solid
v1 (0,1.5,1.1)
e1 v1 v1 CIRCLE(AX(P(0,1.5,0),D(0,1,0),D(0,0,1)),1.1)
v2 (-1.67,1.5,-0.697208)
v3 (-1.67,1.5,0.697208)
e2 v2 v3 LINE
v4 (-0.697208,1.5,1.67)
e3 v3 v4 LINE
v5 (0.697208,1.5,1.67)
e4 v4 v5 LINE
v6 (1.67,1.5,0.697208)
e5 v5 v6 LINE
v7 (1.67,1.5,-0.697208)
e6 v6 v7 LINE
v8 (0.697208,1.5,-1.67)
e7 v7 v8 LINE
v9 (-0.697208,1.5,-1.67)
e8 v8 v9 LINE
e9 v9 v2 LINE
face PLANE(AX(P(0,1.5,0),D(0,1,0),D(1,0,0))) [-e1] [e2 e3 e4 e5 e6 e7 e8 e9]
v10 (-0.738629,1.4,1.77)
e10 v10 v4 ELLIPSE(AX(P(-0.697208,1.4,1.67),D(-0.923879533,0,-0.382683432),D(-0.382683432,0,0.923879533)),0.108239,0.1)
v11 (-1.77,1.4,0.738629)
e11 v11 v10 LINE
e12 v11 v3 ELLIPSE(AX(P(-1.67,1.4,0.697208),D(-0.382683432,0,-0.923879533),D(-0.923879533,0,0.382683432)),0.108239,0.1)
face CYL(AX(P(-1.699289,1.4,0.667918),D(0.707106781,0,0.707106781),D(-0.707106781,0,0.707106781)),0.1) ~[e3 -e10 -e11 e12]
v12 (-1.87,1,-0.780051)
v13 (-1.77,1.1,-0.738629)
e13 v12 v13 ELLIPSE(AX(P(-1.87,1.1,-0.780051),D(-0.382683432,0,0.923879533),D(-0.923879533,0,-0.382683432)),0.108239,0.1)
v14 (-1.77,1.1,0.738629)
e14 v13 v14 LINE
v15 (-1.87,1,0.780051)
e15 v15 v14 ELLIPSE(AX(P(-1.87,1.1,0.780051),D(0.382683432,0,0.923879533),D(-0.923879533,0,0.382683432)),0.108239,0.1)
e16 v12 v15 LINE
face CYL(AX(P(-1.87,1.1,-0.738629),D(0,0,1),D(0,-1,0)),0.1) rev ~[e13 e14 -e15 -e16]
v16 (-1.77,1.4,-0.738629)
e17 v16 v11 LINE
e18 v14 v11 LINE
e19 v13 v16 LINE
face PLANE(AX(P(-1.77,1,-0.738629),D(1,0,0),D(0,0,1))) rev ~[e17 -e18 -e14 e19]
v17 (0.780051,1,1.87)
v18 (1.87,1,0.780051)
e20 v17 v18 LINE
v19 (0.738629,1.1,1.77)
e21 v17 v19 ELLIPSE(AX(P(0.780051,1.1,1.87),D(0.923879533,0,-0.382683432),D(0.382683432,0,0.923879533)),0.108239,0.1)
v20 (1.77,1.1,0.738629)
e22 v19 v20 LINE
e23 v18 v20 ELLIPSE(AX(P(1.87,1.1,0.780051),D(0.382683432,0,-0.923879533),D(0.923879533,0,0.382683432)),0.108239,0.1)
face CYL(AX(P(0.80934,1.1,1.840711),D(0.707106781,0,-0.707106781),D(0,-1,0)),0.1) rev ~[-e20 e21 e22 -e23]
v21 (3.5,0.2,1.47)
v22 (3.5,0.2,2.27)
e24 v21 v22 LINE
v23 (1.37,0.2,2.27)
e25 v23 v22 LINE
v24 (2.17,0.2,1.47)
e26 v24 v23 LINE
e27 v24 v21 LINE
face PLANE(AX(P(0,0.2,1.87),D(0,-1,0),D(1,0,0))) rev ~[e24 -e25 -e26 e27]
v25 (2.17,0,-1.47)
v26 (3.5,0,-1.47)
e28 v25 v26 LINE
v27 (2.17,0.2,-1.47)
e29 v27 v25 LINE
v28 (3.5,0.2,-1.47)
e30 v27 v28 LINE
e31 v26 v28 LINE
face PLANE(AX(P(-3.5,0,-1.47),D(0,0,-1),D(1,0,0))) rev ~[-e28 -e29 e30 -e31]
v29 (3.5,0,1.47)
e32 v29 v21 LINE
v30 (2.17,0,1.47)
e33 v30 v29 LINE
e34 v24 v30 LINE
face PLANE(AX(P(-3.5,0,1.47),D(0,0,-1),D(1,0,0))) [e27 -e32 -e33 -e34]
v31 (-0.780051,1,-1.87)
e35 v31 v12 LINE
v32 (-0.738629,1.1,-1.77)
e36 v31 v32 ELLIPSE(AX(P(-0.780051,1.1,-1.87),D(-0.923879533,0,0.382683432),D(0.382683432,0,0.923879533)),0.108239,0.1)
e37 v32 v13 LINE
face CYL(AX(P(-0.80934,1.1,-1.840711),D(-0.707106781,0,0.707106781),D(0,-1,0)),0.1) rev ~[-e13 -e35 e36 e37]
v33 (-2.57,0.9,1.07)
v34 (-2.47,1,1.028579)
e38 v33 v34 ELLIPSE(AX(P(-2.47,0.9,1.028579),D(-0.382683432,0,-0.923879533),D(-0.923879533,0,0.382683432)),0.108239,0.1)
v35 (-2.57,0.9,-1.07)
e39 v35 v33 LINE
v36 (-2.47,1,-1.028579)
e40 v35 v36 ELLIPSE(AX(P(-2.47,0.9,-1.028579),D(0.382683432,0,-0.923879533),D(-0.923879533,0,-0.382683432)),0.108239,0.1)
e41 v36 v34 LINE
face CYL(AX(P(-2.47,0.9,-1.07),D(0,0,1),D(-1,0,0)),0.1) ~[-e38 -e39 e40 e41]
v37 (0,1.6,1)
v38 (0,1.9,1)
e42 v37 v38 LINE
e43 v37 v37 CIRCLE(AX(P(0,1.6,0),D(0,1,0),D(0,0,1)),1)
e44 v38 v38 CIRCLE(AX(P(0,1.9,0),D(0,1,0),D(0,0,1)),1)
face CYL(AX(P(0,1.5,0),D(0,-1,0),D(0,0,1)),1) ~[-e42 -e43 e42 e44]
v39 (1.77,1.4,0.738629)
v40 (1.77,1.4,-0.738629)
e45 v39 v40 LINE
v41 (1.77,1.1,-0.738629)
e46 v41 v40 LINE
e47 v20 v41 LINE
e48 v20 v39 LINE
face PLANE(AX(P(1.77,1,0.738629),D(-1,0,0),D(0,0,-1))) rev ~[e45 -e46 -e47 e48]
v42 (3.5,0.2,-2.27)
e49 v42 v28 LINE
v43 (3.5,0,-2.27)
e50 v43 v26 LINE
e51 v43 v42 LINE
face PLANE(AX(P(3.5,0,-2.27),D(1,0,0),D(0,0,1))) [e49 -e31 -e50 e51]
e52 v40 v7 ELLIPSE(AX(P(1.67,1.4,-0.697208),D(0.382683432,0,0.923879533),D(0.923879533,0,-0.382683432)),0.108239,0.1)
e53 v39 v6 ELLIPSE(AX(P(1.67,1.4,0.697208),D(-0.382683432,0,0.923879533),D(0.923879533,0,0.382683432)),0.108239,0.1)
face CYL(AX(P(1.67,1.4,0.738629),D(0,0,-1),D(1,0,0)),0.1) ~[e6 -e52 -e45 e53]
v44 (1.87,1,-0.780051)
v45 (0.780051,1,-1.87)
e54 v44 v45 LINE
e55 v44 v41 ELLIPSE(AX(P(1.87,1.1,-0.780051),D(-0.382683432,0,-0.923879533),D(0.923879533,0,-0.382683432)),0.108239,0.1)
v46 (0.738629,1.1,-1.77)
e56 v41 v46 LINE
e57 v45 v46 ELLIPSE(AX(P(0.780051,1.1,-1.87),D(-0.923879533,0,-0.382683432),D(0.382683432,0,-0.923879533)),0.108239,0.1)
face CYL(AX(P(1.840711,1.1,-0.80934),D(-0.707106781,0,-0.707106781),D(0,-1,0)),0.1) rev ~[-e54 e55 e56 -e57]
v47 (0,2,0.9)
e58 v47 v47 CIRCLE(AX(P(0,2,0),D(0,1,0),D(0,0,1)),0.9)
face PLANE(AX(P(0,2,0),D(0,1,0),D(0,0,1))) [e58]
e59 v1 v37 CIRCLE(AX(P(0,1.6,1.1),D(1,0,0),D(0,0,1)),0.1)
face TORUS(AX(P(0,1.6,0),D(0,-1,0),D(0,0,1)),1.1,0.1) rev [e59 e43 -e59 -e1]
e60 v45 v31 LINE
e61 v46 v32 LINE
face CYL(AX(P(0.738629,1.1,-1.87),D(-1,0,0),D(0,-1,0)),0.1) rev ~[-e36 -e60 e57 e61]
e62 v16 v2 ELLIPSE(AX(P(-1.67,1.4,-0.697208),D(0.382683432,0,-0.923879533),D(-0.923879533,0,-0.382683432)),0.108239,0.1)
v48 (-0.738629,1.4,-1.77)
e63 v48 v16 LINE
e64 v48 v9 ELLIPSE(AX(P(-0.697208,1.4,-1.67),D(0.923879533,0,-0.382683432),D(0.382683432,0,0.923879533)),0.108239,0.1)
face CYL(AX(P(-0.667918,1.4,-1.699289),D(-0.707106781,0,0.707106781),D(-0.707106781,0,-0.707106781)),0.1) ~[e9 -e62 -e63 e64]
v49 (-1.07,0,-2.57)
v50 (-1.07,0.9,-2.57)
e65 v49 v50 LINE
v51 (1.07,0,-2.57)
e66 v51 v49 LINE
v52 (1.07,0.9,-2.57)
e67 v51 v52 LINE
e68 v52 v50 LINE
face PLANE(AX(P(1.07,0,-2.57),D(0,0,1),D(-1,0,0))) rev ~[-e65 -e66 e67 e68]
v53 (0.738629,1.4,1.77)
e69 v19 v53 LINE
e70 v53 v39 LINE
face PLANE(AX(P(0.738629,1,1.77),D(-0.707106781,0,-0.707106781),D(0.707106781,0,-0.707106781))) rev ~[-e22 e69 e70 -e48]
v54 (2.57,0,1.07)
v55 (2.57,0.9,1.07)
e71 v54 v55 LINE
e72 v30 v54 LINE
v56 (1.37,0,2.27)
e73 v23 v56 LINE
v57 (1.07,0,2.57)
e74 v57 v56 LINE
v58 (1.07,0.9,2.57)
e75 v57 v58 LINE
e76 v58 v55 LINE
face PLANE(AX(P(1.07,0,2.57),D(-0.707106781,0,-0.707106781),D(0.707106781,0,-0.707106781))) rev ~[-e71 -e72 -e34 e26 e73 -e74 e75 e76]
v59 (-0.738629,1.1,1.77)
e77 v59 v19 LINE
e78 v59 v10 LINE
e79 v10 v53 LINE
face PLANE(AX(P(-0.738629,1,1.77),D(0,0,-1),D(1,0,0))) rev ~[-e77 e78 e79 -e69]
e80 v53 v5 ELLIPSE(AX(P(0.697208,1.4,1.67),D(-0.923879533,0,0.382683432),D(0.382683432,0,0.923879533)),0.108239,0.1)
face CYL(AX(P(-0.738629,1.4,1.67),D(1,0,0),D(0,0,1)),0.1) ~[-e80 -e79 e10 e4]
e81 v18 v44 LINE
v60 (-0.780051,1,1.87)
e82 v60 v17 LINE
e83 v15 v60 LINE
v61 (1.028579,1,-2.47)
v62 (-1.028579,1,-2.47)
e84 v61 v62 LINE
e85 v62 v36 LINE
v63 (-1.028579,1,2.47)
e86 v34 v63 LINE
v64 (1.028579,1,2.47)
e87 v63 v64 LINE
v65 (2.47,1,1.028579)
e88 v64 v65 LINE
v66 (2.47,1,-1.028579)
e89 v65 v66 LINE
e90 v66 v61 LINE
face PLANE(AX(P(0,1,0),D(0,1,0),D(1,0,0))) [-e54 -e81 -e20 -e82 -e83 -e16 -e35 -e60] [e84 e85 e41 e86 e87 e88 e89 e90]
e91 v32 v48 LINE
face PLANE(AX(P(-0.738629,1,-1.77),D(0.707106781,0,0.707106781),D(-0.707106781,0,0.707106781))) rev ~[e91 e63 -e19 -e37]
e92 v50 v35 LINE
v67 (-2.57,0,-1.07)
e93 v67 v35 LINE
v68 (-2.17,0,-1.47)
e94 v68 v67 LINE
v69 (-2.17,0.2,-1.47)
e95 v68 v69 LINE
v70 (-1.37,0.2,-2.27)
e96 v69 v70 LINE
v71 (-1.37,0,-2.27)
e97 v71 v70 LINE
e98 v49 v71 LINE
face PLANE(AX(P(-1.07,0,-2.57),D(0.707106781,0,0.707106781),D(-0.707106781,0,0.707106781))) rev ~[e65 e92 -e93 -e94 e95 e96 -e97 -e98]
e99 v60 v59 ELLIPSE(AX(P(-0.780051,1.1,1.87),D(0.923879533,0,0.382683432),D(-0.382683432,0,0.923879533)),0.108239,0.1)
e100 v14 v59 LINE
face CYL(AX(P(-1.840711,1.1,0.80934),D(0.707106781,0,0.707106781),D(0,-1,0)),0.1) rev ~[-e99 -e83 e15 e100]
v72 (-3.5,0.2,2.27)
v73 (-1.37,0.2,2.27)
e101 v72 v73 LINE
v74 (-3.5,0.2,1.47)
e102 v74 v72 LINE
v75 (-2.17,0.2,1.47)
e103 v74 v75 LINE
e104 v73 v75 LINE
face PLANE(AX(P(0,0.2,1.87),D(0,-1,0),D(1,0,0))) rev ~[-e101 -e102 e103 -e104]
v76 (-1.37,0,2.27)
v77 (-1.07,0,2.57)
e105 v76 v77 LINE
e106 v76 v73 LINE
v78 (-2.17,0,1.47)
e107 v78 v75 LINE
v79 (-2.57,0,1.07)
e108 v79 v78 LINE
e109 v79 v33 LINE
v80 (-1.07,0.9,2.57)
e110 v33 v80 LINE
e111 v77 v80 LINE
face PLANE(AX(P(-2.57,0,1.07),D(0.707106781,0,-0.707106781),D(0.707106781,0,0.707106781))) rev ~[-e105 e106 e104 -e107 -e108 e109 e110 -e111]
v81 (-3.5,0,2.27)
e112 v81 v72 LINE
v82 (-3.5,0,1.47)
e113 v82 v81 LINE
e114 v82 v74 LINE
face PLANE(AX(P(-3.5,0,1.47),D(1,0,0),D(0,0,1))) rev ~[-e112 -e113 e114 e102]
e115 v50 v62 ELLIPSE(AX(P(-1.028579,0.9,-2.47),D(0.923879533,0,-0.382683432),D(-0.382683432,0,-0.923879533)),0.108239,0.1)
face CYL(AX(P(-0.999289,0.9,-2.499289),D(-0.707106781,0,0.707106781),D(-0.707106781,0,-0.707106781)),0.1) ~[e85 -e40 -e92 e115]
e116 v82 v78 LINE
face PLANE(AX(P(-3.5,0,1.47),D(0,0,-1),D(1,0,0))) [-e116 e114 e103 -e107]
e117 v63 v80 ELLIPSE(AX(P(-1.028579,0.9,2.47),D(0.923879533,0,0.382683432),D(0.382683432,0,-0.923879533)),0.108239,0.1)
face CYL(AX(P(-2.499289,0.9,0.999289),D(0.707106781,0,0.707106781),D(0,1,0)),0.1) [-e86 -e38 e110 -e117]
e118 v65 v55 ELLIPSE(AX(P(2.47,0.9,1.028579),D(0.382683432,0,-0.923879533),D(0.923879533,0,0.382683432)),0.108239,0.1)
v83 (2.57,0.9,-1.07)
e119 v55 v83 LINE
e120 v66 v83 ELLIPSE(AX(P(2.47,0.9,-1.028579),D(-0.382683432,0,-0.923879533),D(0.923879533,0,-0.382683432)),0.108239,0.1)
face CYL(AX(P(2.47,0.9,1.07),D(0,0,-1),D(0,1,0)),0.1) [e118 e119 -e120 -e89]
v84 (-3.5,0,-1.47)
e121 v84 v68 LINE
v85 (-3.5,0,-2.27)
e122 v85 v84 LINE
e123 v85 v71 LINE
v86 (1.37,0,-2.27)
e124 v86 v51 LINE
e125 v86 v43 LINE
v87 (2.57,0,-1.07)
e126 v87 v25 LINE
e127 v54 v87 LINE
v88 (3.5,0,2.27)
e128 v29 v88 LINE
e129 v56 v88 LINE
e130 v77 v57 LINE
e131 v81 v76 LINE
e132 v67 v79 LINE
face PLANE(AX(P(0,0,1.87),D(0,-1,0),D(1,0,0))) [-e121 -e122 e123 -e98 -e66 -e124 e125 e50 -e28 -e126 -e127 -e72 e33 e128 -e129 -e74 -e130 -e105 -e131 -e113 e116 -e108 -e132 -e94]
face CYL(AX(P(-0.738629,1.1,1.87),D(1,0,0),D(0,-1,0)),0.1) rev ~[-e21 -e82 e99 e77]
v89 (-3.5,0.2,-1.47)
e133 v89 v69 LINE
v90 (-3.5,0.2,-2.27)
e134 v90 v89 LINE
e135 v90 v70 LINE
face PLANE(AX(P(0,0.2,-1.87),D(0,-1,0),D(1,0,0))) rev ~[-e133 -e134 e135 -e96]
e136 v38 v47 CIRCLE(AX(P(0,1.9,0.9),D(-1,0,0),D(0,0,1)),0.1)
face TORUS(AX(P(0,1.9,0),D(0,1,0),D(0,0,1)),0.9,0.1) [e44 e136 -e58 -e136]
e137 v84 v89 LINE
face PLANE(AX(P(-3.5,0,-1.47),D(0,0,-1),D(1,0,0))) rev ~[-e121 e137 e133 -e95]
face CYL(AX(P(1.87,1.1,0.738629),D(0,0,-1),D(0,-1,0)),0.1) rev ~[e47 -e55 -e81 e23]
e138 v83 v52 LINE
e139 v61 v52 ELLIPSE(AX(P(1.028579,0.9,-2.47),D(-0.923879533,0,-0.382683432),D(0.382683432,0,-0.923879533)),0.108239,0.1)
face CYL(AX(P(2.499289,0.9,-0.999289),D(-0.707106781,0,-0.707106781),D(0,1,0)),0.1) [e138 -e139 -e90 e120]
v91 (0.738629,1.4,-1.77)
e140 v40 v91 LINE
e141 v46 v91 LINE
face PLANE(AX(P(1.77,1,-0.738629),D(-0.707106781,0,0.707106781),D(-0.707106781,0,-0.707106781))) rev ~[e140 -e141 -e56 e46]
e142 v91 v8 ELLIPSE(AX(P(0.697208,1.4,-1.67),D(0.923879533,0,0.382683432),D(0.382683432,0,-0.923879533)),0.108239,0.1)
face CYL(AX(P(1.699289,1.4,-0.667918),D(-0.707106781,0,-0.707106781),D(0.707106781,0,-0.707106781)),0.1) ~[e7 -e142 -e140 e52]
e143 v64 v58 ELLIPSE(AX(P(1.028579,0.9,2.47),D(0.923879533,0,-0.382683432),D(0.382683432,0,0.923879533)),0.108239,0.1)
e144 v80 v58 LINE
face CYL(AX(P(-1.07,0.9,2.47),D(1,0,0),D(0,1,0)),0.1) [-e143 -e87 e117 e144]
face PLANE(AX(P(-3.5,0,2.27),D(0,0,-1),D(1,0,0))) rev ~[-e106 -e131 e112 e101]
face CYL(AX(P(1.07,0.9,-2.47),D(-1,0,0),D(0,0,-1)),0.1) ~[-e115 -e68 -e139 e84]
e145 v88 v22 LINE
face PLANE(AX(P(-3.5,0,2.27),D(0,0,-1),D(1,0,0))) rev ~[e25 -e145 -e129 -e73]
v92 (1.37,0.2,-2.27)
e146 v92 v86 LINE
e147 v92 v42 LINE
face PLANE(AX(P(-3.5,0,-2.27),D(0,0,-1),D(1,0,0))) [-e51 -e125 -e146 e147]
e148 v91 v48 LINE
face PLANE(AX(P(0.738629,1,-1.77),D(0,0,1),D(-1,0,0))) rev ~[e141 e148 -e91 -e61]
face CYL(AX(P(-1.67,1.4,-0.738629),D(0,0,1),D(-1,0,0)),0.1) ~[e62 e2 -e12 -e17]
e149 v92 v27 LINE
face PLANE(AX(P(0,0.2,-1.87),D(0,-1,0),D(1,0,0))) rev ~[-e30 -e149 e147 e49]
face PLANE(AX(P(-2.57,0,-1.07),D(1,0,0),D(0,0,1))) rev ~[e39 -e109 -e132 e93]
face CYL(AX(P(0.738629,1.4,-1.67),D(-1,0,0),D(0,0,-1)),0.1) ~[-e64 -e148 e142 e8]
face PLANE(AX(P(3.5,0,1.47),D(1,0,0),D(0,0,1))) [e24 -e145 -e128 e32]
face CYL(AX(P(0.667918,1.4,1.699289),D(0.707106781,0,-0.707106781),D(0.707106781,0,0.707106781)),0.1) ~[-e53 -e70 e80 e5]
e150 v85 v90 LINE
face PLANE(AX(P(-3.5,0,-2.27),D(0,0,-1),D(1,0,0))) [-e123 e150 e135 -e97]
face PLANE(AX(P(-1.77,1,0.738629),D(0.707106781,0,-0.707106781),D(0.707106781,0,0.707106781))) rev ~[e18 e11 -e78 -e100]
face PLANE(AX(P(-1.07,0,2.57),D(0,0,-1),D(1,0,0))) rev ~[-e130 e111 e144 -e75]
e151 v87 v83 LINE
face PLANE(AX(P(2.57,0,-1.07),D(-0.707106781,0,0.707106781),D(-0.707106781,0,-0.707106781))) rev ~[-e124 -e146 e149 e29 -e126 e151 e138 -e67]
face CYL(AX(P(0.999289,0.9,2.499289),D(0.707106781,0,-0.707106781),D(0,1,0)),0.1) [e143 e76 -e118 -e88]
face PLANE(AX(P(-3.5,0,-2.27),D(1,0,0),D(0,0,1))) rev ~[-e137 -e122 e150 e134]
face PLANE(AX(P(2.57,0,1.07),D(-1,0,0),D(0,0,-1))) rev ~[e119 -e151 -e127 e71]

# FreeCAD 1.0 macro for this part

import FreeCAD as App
import Part
import Sketcher


def edges_at(feature, points):
    """Names of the edges that pass closest to the given points."""
    edges = feature.Shape.Edges
    near = lambda p: min(range(len(edges)), key=lambda i: edges[i].distToShape(Part.Vertex(*p))[0])
    return sorted({f"Edge{near(p) + 1}" for p in points})

doc = App.newDocument("Part")
body = doc.addObject("PartDesign::Body", "Body")

sketch1 = body.newObject("Sketcher::SketchObject", "Sketch")
sketch1.AttachmentSupport = (doc.getObject("XZ_Plane"), [""])
sketch1.MapMode = "FlatFace"
sketch1.addGeometry([
    Part.LineSegment(App.Vector(-1.1, -2.6, 0), App.Vector(-2.6, -1.1, 0)),
    Part.LineSegment(App.Vector(-2.6, -1.1, 0), App.Vector(-2.6, 1.1, 0)),
    Part.LineSegment(App.Vector(-2.6, 1.1, 0), App.Vector(-1.1, 2.6, 0)),
    Part.LineSegment(App.Vector(-1.1, 2.6, 0), App.Vector(1.1, 2.6, 0)),
    Part.LineSegment(App.Vector(1.1, 2.6, 0), App.Vector(2.6, 1.1, 0)),
    Part.LineSegment(App.Vector(2.6, 1.1, 0), App.Vector(2.6, -1.1, 0)),
    Part.LineSegment(App.Vector(2.6, -1.1, 0), App.Vector(1.1, -2.6, 0)),
    Part.LineSegment(App.Vector(1.1, -2.6, 0), App.Vector(-1.1, -2.6, 0)),
], False)
sketch1.addConstraint([
    Sketcher.Constraint("Coincident", 0, 2, 1, 1),
    Sketcher.Constraint("Coincident", 1, 2, 2, 1),
    Sketcher.Constraint("Coincident", 2, 2, 3, 1),
    Sketcher.Constraint("Coincident", 3, 2, 4, 1),
    Sketcher.Constraint("Coincident", 4, 2, 5, 1),
    Sketcher.Constraint("Coincident", 5, 2, 6, 1),
    Sketcher.Constraint("Coincident", 6, 2, 7, 1),
    Sketcher.Constraint("Coincident", 7, 2, 0, 1),
    Sketcher.Constraint("Vertical", 1),
    Sketcher.Constraint("Horizontal", 3),
    Sketcher.Constraint("Vertical", 5),
    Sketcher.Constraint("Horizontal", 7),
    Sketcher.Constraint("Symmetric", 0, 2, 4, 2, -1, 1),
    Sketcher.Constraint("Symmetric", 2, 2, 6, 2, -1, 1),
    Sketcher.Constraint("Perpendicular", 0, 2),
    Sketcher.Constraint("Perpendicular", 2, 4),
    Sketcher.Constraint("Perpendicular", 4, 6),
    Sketcher.Constraint("Horizontal", 1, 2, 4, 2),
    Sketcher.Constraint("Vertical", 3, 2, 6, 2),
    Sketcher.Constraint("Equal", 7, 1),
    Sketcher.Constraint("DistanceX", 3, 1, 3, 2, 2.14),
    Sketcher.Constraint("DistanceX", 1, 2, 2, 2, 1.5),
])
pad1 = body.newObject("PartDesign::Pad", "Pad")
pad1.Profile = sketch1
pad1.Length = 1
pad1.Reversed = True

sketch2 = body.newObject("Sketcher::SketchObject", "Sketch001")
sketch2.AttachmentSupport = (doc.getObject("XZ_Plane"), [""])
sketch2.MapMode = "FlatFace"
sketch2.AttachmentOffset = App.Placement(App.Vector(0, 0, -1), App.Rotation())
sketch2.addGeometry([
    Part.LineSegment(App.Vector(-1.8, -0.7, 0), App.Vector(-1.8, 0.7, 0)),
    Part.LineSegment(App.Vector(-1.8, 0.7, 0), App.Vector(-0.7, 1.8, 0)),
    Part.LineSegment(App.Vector(-0.7, 1.8, 0), App.Vector(0.7, 1.8, 0)),
    Part.LineSegment(App.Vector(0.7, 1.8, 0), App.Vector(1.8, 0.7, 0)),
    Part.LineSegment(App.Vector(1.8, 0.7, 0), App.Vector(1.8, -0.7, 0)),
    Part.LineSegment(App.Vector(1.8, -0.7, 0), App.Vector(0.7, -1.8, 0)),
    Part.LineSegment(App.Vector(0.7, -1.8, 0), App.Vector(-0.7, -1.8, 0)),
    Part.LineSegment(App.Vector(-0.7, -1.8, 0), App.Vector(-1.8, -0.7, 0)),
], False)
sketch2.addConstraint([
    Sketcher.Constraint("Coincident", 0, 2, 1, 1),
    Sketcher.Constraint("Coincident", 1, 2, 2, 1),
    Sketcher.Constraint("Coincident", 2, 2, 3, 1),
    Sketcher.Constraint("Coincident", 3, 2, 4, 1),
    Sketcher.Constraint("Coincident", 4, 2, 5, 1),
    Sketcher.Constraint("Coincident", 5, 2, 6, 1),
    Sketcher.Constraint("Coincident", 6, 2, 7, 1),
    Sketcher.Constraint("Coincident", 7, 2, 0, 1),
    Sketcher.Constraint("Vertical", 0),
    Sketcher.Constraint("Horizontal", 2),
    Sketcher.Constraint("Vertical", 4),
    Sketcher.Constraint("Horizontal", 6),
    Sketcher.Constraint("Symmetric", 0, 2, 4, 2, -1, 1),
    Sketcher.Constraint("Symmetric", 1, 2, 5, 2, -1, 1),
    Sketcher.Constraint("Perpendicular", 1, 3),
    Sketcher.Constraint("Perpendicular", 5, 7),
    Sketcher.Constraint("Horizontal", 0, 2, 3, 2),
    Sketcher.Constraint("Horizontal", 4, 2, 7, 2),
    Sketcher.Constraint("Vertical", 2, 2, 5, 2),
    Sketcher.Constraint("Equal", 6, 0),
    Sketcher.Constraint("DistanceX", 0, 2, -1, 1, 1.77),
    Sketcher.Constraint("DistanceX", 2, 1, 2, 2, 1.477258),
])
pad2 = body.newObject("PartDesign::Pad", "Pad001")
pad2.Profile = sketch2
pad2.Length = 0.5
pad2.Reversed = True

sketch3 = body.newObject("Sketcher::SketchObject", "Sketch002")
sketch3.AttachmentSupport = (doc.getObject("XZ_Plane"), [""])
sketch3.MapMode = "FlatFace"
sketch3.AttachmentOffset = App.Placement(App.Vector(0, 0, -1.5), App.Rotation())
sketch3.addGeometry(Part.Circle(App.Vector(0, 0, 0), App.Vector(0, 0, 1), 1), False)
sketch3.addConstraint([
    Sketcher.Constraint("Coincident", 0, 3, -1, 1),
    Sketcher.Constraint("Diameter", 0, 2.0),
])
pad3 = body.newObject("PartDesign::Pad", "Pad002")
pad3.Profile = sketch3
pad3.Length = 0.5
pad3.Reversed = True
doc.recompute()

fillet = body.newObject("PartDesign::Fillet", "Fillet")
fillet.Base = (pad3, edges_at(pad3, [
    (0, 1, 2.57),
    (1.82, 1, 1.82),
    (2.57, 1, 0),
    (1.82, 1, -1.82),
    (-1.254, 1, -1.254),
    (-1.77, 1, 0),
    (-1.254, 1, 1.254),
    (0, 1, -2.57),
    (0, 1, 1.77),
    (1.254, 1, 1.254),
    (1.77, 1, 0),
    (1.254, 1, -1.254),
    (0, 1, -1.77),
    (-1.254, 1.5, -1.254),
    (-1.77, 1.5, 0),
    (-1.254, 1.5, 1.254),
    (0, 1.5, 1.77),
    (1.254, 1.5, 1.254),
    (1.77, 1.5, 0),
    (1.254, 1.5, -1.254),
    (-1.82, 1, -1.82),
    (0, 1.5, -1.77),
    (0, 1.5, -1),
    (-2.57, 1, 0),
    (-1.82, 1, 1.82),
]))
fillet.Radius = 0.1

sketch4 = body.newObject("Sketcher::SketchObject", "Sketch003")
sketch4.AttachmentSupport = (doc.getObject("XZ_Plane"), [""])
sketch4.MapMode = "FlatFace"
sketch4.addGeometry([
    Part.LineSegment(App.Vector(-3.5, 2.3, 0), App.Vector(-3.5, 1.5, 0)),
    Part.LineSegment(App.Vector(-3.5, 1.5, 0), App.Vector(3.5, 1.5, 0)),
    Part.LineSegment(App.Vector(3.5, 1.5, 0), App.Vector(3.5, 2.3, 0)),
    Part.LineSegment(App.Vector(3.5, 2.3, 0), App.Vector(-3.5, 2.3, 0)),
    Part.LineSegment(App.Vector(-3.5, -1.5, 0), App.Vector(-3.5, -2.3, 0)),
    Part.LineSegment(App.Vector(-3.5, -2.3, 0), App.Vector(3.5, -2.3, 0)),
    Part.LineSegment(App.Vector(3.5, -2.3, 0), App.Vector(3.5, -1.5, 0)),
    Part.LineSegment(App.Vector(3.5, -1.5, 0), App.Vector(-3.5, -1.5, 0)),
], False)
sketch4.addConstraint([
    Sketcher.Constraint("Coincident", 0, 2, 1, 1),
    Sketcher.Constraint("Coincident", 1, 2, 2, 1),
    Sketcher.Constraint("Coincident", 2, 2, 3, 1),
    Sketcher.Constraint("Coincident", 3, 2, 0, 1),
    Sketcher.Constraint("Coincident", 4, 2, 5, 1),
    Sketcher.Constraint("Coincident", 5, 2, 6, 1),
    Sketcher.Constraint("Coincident", 6, 2, 7, 1),
    Sketcher.Constraint("Coincident", 7, 2, 4, 1),
    Sketcher.Constraint("Vertical", 0),
    Sketcher.Constraint("Horizontal", 1),
    Sketcher.Constraint("Vertical", 2),
    Sketcher.Constraint("Horizontal", 3),
    Sketcher.Constraint("Vertical", 4),
    Sketcher.Constraint("Horizontal", 5),
    Sketcher.Constraint("Vertical", 6),
    Sketcher.Constraint("Horizontal", 7),
    Sketcher.Constraint("Symmetric", 2, 2, 4, 2, -1, 1),
    Sketcher.Constraint("Symmetric", 0, 2, 6, 2, -1, 1),
    Sketcher.Constraint("Vertical", 3, 2, 4, 2),
    Sketcher.Constraint("DistanceX", 1, 1, 1, 2, 7.0),
    Sketcher.Constraint("DistanceY", 0, 2, 0, 1, 0.8),
    Sketcher.Constraint("DistanceY", -1, 1, 0, 2, 1.47),
])
pad4 = body.newObject("PartDesign::Pad", "Pad003")
pad4.Profile = sketch4
pad4.Length = 0.2
pad4.Reversed = True
doc.recompute()

fillet2 = body.newObject("PartDesign::Fillet", "Fillet001")
fillet2.Base = (pad4, edges_at(pad4, [(0, 2, -1)]))
fillet2.Radius = 0.1

doc.recompute()
